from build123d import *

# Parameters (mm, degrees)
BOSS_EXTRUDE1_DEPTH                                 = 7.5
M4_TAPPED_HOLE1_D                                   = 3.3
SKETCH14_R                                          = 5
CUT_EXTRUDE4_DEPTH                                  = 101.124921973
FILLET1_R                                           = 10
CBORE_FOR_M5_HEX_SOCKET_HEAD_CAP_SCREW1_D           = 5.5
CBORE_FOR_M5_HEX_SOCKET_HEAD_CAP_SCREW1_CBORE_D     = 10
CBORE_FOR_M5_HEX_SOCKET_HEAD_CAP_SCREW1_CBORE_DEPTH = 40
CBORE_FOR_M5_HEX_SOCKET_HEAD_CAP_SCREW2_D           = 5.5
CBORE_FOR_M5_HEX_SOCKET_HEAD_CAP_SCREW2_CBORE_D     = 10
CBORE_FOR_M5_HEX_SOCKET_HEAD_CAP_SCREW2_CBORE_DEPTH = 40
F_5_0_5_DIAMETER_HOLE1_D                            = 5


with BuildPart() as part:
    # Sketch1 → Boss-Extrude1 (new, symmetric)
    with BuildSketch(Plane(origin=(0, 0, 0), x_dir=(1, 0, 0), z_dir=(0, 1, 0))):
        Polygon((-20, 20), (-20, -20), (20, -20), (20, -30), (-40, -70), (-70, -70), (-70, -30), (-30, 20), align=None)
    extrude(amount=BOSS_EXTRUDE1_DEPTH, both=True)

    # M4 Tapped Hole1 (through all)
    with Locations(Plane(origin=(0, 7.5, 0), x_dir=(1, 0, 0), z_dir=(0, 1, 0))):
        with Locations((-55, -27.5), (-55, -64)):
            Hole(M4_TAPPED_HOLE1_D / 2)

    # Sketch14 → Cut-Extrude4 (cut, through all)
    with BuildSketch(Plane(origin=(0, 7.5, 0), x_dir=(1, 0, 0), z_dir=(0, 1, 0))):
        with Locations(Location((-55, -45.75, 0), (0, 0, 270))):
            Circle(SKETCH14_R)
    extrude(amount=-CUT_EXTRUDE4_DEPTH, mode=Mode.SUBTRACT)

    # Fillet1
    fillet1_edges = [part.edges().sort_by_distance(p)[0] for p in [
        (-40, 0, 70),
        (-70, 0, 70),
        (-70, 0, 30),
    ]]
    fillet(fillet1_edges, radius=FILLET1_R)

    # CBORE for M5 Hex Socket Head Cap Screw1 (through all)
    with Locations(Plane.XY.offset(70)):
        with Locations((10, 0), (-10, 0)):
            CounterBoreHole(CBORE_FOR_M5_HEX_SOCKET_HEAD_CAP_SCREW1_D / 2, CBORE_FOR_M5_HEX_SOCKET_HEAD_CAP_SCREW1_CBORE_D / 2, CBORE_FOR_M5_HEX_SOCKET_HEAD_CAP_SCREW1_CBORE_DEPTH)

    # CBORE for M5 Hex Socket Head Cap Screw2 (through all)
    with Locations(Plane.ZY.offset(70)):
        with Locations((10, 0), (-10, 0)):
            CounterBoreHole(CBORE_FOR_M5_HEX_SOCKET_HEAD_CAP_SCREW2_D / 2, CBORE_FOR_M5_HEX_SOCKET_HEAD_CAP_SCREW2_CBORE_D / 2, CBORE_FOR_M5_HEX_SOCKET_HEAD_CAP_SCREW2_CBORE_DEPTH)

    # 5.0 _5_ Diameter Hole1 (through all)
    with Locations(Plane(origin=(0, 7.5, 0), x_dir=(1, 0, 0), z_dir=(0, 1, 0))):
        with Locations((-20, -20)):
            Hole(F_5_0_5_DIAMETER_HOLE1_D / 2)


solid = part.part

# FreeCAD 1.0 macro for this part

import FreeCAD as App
import Part
import Sketcher
Q = App.Units.Quantity


def edges_at(feature, points):
    """Names of the edges that pass closest to the given points."""
    edges = feature.Shape.Edges
    near = lambda p: min(range(len(edges)), key=lambda i: edges[i].distToShape(Part.Vertex(*p))[0])
    return sorted({f"Edge{near(p) + 1}" for p in points})


def add_polygon(sketch, points):
    """Adds a closed chain of lines whose ends are joined by coincident constraints."""
    first, n = sketch.GeometryCount, len(points)
    for a, b in zip(points, points[1:] + points[:1]):
        sketch.addGeometry(Part.LineSegment(App.Vector(*a, 0), App.Vector(*b, 0)), False)
    for i in range(n):
        sketch.addConstraint(Sketcher.Constraint("Coincident", first + i, 2, first + (i + 1) % n, 1))

doc = App.newDocument("Part")
body = doc.addObject("PartDesign::Body", "Body")

# Sketch on XZ plane
sketch1 = body.newObject("Sketcher::SketchObject", "Sketch")
sketch1.AttachmentSupport = (doc.getObject("XZ_Plane"), [""])
sketch1.MapMode = "FlatFace"
add_polygon(sketch1, [(-20, 20), (-20, -20), (-30, -20), (-70, 30), (-70, 70), (-40, 70), (20, 30), (20, 20)])  # lines 0-7
sketch1.addConstraint([
    Sketcher.Constraint("Vertical", 0),
    Sketcher.Constraint("Horizontal", 1),
    Sketcher.Constraint("Vertical", 3),
    Sketcher.Constraint("Horizontal", 4),
    Sketcher.Constraint("Vertical", 6),
    Sketcher.Constraint("Horizontal", 7),
    Sketcher.Constraint("Symmetric", 0, 2, 6, 2, -1, 1),
    Sketcher.Constraint("Horizontal", 2, 2, 5, 2),
    Sketcher.Constraint("Equal", 7, 0),
    Sketcher.Constraint("Equal", 0, 3),
    Sketcher.Constraint("Equal", 1, 6),
    Sketcher.Constraint("DistanceX", 1, 2, 1, 1, Q("10 mm")),
    Sketcher.Constraint("DistanceX", 4, 1, 4, 2, Q("30 mm")),
    Sketcher.Constraint("DistanceX", 7, 2, 7, 1, Q("40 mm")),
    Sketcher.Constraint("DistanceX", 2, 2, -1, 1, Q("70 mm")),
])
pad1 = body.newObject("PartDesign::Pad", "Pad")
pad1.Profile = sketch1
pad1.Length = 15
pad1.Midplane = True

# Sketch on XZ plane
sketch2 = body.newObject("Sketcher::SketchObject", "Sketch001")
sketch2.AttachmentSupport = (doc.getObject("XZ_Plane"), [""])
sketch2.MapMode = "FlatFace"
sketch2.AttachmentOffset = App.Placement(App.Vector(0, 0, -7.5), App.Rotation())
sketch2.addGeometry([
    Part.Circle(App.Vector(-55, 27.5, 0), App.Vector(0, 0, 1), 1.6),
    Part.Circle(App.Vector(-55, 64, 0), App.Vector(0, 0, 1), 1.6),
], False)
sketch2.addConstraint([
    Sketcher.Constraint("Equal", 0, 1),
    Sketcher.Constraint("Vertical", 0, 3, 1, 3),
    Sketcher.Constraint("Diameter", 0, Q("3.3 mm")),
    Sketcher.Constraint("DistanceX", 0, 3, -1, 1, Q("55 mm")),
    Sketcher.Constraint("DistanceY", -1, 1, 1, 3, Q("64 mm")),
    Sketcher.Constraint("DistanceY", -1, 1, 0, 3, Q("27.5 mm")),
])
doc.recompute()
hole = body.newObject("PartDesign::Hole", "Hole")
hole.Profile = sketch2
hole.ThreadType = "None"
hole.Diameter = 3.3
hole.DepthType = "ThroughAll"
hole.Reversed = True

# Sketch on XZ plane
sketch3 = body.newObject("Sketcher::SketchObject", "Sketch002")
sketch3.AttachmentSupport = (doc.getObject("XZ_Plane"), [""])
sketch3.MapMode = "FlatFace"
sketch3.AttachmentOffset = App.Placement(App.Vector(0, 0, -7.5), App.Rotation())
sketch3.addGeometry(Part.Circle(App.Vector(-55, 46, 0), App.Vector(0, 0, 1), 5), False)
sketch3.addConstraint([
    Sketcher.Constraint("Diameter", 0, Q("10 mm")),
    Sketcher.Constraint("DistanceX", 0, 3, -1, 1, Q("55 mm")),
    Sketcher.Constraint("DistanceY", -1, 1, 0, 3, Q("45.75 mm")),
])
pocket1 = body.newObject("PartDesign::Pocket", "Pocket")
pocket1.Profile = sketch3
pocket1.Type = "ThroughAll"
pocket1.Reversed = True
doc.recompute()

fillet = body.newObject("PartDesign::Fillet", "Fillet")
fillet.Base = (pocket1, edges_at(pocket1, [(-40, 0, 70), (-70, 0, 70), (-70, 0, 30)]))
fillet.Radius = 10

# Sketch on XY plane
sketch4 = body.newObject("Sketcher::SketchObject", "Sketch003")
sketch4.AttachmentSupport = (doc.getObject("XY_Plane"), [""])
sketch4.MapMode = "FlatFace"
sketch4.AttachmentOffset = App.Placement(App.Vector(0, 0, 70), App.Rotation())
sketch4.addGeometry([
    Part.Circle(App.Vector(10, 0, 0), App.Vector(0, 0, 1), 2.8),
    Part.Circle(App.Vector(-10, 0, 0), App.Vector(0, 0, 1), 2.8),
], False)
sketch4.addConstraint([
    Sketcher.Constraint("Equal", 0, 1),
    Sketcher.Constraint("Symmetric", 0, 3, 1, 3, -1, 1),
    Sketcher.Constraint("PointOnObject", 0, 3, -1),
    Sketcher.Constraint("Diameter", 0, Q("5.5 mm")),
    Sketcher.Constraint("DistanceX", -1, 1, 0, 3, Q("10 mm")),
])
doc.recompute()
hole2 = body.newObject("PartDesign::Hole", "Hole001")
hole2.Profile = sketch4
hole2.ThreadType = "None"
hole2.Diameter = 5.5
hole2.DepthType = "ThroughAll"
hole2.HoleCutType = "Counterbore"
hole2.HoleCutDiameter = 10
hole2.HoleCutDepth = 40

# Sketch on YZ plane
sketch5 = body.newObject("Sketcher::SketchObject", "Sketch004")
sketch5.AttachmentSupport = (doc.getObject("YZ_Plane"), [""])
sketch5.MapMode = "FlatFace"
sketch5.AttachmentOffset = App.Placement(App.Vector(0, 0, -70), App.Rotation())
sketch5.addGeometry([
    Part.Circle(App.Vector(0, 10, 0), App.Vector(0, 0, 1), 2.8),
    Part.Circle(App.Vector(0, -10, 0), App.Vector(0, 0, 1), 2.8),
], False)
sketch5.addConstraint([
    Sketcher.Constraint("Equal", 0, 1),
    Sketcher.Constraint("Symmetric", 0, 3, 1, 3, -1, 1),
    Sketcher.Constraint("PointOnObject", 0, 3, -2),
    Sketcher.Constraint("Diameter", 0, Q("5.5 mm")),
    Sketcher.Constraint("DistanceY", -1, 1, 0, 3, Q("10 mm")),
])
doc.recompute()
hole3 = body.newObject("PartDesign::Hole", "Hole002")
hole3.Profile = sketch5
hole3.ThreadType = "None"
hole3.Diameter = 5.5
hole3.DepthType = "ThroughAll"
hole3.HoleCutType = "Counterbore"
hole3.HoleCutDiameter = 10
hole3.HoleCutDepth = 40
hole3.Reversed = True

# Sketch on XZ plane
sketch6 = body.newObject("Sketcher::SketchObject", "Sketch005")
sketch6.AttachmentSupport = (doc.getObject("XZ_Plane"), [""])
sketch6.MapMode = "FlatFace"
sketch6.AttachmentOffset = App.Placement(App.Vector(0, 0, -7.5), App.Rotation())
sketch6.addGeometry(Part.Circle(App.Vector(-20, 20, 0), App.Vector(0, 0, 1), 2.5), False)
sketch6.addConstraint([
    Sketcher.Constraint("Diameter", 0, Q("5 mm")),
    Sketcher.Constraint("DistanceX", 0, 3, -1, 1, Q("20 mm")),
    Sketcher.Constraint("DistanceY", -1, 1, 0, 3, Q("20 mm")),
])
doc.recompute()
hole4 = body.newObject("PartDesign::Hole", "Hole003")
hole4.Profile = sketch6
hole4.ThreadType = "None"
hole4.Diameter = 5
hole4.DepthType = "ThroughAll"
hole4.Reversed = True

doc.recompute()
